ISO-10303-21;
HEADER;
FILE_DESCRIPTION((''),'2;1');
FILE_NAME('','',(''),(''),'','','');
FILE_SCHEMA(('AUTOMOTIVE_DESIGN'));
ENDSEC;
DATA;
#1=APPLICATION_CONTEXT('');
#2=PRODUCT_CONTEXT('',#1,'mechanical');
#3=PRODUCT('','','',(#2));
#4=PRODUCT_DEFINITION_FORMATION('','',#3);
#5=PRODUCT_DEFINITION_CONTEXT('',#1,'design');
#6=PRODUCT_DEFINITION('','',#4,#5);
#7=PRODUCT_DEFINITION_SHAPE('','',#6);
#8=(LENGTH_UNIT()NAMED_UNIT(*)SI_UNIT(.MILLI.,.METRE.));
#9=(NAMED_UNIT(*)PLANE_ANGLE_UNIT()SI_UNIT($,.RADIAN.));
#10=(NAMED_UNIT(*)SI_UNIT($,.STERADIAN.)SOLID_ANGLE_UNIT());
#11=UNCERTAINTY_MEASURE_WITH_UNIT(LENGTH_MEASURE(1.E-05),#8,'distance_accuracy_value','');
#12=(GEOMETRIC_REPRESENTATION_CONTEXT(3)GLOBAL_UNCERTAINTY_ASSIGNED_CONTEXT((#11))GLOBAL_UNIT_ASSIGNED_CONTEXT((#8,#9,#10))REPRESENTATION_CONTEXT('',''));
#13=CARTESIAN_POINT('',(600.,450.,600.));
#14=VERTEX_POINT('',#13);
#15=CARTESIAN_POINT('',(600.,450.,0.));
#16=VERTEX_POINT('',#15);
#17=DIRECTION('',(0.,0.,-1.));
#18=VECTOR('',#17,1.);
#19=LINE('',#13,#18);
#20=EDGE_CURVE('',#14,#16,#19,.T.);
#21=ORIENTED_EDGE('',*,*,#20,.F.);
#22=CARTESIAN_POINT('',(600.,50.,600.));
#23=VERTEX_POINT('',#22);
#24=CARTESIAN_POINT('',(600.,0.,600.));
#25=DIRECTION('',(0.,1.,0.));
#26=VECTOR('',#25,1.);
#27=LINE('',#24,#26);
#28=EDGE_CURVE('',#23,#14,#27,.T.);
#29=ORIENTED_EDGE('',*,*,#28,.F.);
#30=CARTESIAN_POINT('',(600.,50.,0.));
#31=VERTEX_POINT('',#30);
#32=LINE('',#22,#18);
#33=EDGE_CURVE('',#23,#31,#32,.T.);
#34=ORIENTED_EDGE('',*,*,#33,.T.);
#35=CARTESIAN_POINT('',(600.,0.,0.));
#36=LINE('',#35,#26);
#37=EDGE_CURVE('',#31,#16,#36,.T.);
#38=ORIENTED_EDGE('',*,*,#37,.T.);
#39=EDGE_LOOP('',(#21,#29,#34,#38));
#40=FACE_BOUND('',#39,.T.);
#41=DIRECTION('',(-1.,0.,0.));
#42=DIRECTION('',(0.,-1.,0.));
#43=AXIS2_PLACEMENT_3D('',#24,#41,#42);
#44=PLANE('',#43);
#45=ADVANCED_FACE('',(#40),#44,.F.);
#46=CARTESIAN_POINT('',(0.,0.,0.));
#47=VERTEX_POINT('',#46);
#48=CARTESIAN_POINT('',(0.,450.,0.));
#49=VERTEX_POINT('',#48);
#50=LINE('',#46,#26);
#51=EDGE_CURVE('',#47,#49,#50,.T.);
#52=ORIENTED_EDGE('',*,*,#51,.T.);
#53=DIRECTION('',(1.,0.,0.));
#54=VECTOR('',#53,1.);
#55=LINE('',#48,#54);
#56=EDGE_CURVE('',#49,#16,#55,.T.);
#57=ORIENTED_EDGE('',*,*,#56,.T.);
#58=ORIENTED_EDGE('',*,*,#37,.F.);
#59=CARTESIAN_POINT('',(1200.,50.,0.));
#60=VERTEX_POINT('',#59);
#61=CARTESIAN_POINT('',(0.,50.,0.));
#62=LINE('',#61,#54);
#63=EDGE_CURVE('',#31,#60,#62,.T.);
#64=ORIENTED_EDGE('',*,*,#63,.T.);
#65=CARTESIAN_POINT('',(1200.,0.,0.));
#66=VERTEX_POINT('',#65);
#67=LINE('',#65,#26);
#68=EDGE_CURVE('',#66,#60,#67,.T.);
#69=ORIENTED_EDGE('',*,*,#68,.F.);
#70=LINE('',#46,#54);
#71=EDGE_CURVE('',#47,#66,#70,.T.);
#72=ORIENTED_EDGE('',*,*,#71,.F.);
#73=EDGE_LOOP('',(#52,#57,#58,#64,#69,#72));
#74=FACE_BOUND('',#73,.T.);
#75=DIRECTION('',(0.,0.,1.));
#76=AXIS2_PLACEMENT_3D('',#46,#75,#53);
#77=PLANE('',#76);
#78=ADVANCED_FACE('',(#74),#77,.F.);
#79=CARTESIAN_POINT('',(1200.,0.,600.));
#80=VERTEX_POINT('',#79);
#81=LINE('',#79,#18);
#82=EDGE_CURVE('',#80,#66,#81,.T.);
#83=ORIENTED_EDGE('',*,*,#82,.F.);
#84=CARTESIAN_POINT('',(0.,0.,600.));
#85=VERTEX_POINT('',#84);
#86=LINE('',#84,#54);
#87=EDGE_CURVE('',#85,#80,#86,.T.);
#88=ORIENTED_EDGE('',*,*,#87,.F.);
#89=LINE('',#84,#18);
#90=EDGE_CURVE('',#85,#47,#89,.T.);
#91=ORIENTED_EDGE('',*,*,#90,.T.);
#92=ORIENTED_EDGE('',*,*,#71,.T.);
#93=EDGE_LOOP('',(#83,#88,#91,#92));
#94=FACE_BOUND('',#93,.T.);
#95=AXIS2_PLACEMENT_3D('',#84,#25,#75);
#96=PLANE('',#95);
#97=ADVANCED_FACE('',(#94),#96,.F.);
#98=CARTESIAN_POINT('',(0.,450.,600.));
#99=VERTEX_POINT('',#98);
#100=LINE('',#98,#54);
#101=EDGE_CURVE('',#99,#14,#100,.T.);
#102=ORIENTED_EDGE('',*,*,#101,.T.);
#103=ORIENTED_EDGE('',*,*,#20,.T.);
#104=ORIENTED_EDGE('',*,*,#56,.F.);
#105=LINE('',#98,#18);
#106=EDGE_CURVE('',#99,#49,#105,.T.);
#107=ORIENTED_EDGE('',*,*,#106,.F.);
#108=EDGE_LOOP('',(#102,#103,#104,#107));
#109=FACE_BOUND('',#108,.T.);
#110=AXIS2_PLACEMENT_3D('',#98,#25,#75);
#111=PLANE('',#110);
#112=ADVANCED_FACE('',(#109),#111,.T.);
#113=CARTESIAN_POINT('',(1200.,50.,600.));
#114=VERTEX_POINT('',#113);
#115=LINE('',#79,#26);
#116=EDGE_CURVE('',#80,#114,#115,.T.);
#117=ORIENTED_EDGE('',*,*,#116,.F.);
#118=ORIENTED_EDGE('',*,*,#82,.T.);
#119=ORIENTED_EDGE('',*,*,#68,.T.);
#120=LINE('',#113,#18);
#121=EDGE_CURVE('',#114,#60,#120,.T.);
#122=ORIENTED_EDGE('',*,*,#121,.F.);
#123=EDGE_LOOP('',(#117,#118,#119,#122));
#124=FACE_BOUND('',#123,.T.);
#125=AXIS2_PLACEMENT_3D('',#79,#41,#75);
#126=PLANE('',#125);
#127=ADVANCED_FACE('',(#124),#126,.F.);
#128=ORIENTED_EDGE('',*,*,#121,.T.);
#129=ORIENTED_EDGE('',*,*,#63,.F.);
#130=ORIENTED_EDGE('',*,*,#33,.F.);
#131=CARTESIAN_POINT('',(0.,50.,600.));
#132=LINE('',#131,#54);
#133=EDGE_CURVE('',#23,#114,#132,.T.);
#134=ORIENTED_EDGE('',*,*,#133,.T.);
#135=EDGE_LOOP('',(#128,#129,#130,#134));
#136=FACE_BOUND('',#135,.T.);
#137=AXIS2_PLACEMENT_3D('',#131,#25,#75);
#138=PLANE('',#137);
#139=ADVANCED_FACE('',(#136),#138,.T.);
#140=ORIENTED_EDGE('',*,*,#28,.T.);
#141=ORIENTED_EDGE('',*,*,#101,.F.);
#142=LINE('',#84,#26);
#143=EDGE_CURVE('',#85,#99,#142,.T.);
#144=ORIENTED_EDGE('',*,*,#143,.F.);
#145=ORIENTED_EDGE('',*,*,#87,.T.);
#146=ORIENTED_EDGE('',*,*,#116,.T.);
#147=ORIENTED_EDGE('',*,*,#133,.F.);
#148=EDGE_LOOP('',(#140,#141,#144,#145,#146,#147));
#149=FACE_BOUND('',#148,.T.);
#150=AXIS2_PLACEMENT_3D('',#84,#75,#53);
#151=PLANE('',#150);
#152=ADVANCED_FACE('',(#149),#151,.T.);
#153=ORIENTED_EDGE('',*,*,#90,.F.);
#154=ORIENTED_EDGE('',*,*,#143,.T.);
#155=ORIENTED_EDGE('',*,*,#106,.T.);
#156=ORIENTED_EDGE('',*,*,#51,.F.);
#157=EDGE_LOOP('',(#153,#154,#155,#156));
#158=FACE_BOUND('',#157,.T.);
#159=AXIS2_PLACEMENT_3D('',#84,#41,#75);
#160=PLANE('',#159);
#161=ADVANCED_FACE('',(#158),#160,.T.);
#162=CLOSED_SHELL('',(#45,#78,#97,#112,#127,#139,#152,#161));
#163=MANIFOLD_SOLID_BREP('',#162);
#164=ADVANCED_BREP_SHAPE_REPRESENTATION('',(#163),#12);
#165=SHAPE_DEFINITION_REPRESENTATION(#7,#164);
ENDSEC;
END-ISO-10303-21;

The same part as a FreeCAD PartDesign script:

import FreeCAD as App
import Part
import Sketcher
from FreeCAD import Vector


def add_polygon(sketch, points):
    """Adds a closed chain of lines whose ends are joined by coincident constraints."""
    first, n = sketch.GeometryCount, len(points)
    for a, b in zip(points, points[1:] + points[:1]):
        sketch.addGeometry(Part.LineSegment(App.Vector(*a, 0), App.Vector(*b, 0)), False)
    for i in range(n):
        sketch.addConstraint(Sketcher.Constraint("Coincident", first + i, 2, first + (i + 1) % n, 1))

doc = App.newDocument("Part")
body = doc.addObject("PartDesign::Body", "Body")

# Sketch on XY plane
sketch1 = doc.addObject("Sketcher::SketchObject", "Sketch")
body.addObject(sketch1)
sketch1.AttachmentSupport = (doc.XY_Plane, [""])
sketch1.MapMode = "FlatFace"
add_polygon(sketch1, [(0, 0), (1200, 0), (1200, 50), (600, 50), (600, 450), (0, 450)])  # lines 0-5
sketch1.addConstraint(Sketcher.Constraint("Horizontal", 0))
sketch1.addConstraint(Sketcher.Constraint("Vertical", 1))
sketch1.addConstraint(Sketcher.Constraint("Horizontal", 2))
sketch1.addConstraint(Sketcher.Constraint("Vertical", 3))
sketch1.addConstraint(Sketcher.Constraint("Horizontal", 4))
sketch1.addConstraint(Sketcher.Constraint("Vertical", 5))
sketch1.addConstraint(Sketcher.Constraint("Coincident", 5, 2, -1, 1))
sketch1.addConstraint(Sketcher.Constraint("Equal", 2, 4))
sketch1.addConstraint(Sketcher.Constraint("DistanceX", 0, 1, 0, 2, 1200.0))
sketch1.addConstraint(Sketcher.Constraint("DistanceY", 1, 1, 1, 2, 50.0))
sketch1.addConstraint(Sketcher.Constraint("DistanceY", 3, 1, 3, 2, 400.0))
pad1 = doc.addObject("PartDesign::Pad", "Pad")
body.addObject(pad1)
pad1.Profile = sketch1
pad1.Length = 600

doc.recompute()
